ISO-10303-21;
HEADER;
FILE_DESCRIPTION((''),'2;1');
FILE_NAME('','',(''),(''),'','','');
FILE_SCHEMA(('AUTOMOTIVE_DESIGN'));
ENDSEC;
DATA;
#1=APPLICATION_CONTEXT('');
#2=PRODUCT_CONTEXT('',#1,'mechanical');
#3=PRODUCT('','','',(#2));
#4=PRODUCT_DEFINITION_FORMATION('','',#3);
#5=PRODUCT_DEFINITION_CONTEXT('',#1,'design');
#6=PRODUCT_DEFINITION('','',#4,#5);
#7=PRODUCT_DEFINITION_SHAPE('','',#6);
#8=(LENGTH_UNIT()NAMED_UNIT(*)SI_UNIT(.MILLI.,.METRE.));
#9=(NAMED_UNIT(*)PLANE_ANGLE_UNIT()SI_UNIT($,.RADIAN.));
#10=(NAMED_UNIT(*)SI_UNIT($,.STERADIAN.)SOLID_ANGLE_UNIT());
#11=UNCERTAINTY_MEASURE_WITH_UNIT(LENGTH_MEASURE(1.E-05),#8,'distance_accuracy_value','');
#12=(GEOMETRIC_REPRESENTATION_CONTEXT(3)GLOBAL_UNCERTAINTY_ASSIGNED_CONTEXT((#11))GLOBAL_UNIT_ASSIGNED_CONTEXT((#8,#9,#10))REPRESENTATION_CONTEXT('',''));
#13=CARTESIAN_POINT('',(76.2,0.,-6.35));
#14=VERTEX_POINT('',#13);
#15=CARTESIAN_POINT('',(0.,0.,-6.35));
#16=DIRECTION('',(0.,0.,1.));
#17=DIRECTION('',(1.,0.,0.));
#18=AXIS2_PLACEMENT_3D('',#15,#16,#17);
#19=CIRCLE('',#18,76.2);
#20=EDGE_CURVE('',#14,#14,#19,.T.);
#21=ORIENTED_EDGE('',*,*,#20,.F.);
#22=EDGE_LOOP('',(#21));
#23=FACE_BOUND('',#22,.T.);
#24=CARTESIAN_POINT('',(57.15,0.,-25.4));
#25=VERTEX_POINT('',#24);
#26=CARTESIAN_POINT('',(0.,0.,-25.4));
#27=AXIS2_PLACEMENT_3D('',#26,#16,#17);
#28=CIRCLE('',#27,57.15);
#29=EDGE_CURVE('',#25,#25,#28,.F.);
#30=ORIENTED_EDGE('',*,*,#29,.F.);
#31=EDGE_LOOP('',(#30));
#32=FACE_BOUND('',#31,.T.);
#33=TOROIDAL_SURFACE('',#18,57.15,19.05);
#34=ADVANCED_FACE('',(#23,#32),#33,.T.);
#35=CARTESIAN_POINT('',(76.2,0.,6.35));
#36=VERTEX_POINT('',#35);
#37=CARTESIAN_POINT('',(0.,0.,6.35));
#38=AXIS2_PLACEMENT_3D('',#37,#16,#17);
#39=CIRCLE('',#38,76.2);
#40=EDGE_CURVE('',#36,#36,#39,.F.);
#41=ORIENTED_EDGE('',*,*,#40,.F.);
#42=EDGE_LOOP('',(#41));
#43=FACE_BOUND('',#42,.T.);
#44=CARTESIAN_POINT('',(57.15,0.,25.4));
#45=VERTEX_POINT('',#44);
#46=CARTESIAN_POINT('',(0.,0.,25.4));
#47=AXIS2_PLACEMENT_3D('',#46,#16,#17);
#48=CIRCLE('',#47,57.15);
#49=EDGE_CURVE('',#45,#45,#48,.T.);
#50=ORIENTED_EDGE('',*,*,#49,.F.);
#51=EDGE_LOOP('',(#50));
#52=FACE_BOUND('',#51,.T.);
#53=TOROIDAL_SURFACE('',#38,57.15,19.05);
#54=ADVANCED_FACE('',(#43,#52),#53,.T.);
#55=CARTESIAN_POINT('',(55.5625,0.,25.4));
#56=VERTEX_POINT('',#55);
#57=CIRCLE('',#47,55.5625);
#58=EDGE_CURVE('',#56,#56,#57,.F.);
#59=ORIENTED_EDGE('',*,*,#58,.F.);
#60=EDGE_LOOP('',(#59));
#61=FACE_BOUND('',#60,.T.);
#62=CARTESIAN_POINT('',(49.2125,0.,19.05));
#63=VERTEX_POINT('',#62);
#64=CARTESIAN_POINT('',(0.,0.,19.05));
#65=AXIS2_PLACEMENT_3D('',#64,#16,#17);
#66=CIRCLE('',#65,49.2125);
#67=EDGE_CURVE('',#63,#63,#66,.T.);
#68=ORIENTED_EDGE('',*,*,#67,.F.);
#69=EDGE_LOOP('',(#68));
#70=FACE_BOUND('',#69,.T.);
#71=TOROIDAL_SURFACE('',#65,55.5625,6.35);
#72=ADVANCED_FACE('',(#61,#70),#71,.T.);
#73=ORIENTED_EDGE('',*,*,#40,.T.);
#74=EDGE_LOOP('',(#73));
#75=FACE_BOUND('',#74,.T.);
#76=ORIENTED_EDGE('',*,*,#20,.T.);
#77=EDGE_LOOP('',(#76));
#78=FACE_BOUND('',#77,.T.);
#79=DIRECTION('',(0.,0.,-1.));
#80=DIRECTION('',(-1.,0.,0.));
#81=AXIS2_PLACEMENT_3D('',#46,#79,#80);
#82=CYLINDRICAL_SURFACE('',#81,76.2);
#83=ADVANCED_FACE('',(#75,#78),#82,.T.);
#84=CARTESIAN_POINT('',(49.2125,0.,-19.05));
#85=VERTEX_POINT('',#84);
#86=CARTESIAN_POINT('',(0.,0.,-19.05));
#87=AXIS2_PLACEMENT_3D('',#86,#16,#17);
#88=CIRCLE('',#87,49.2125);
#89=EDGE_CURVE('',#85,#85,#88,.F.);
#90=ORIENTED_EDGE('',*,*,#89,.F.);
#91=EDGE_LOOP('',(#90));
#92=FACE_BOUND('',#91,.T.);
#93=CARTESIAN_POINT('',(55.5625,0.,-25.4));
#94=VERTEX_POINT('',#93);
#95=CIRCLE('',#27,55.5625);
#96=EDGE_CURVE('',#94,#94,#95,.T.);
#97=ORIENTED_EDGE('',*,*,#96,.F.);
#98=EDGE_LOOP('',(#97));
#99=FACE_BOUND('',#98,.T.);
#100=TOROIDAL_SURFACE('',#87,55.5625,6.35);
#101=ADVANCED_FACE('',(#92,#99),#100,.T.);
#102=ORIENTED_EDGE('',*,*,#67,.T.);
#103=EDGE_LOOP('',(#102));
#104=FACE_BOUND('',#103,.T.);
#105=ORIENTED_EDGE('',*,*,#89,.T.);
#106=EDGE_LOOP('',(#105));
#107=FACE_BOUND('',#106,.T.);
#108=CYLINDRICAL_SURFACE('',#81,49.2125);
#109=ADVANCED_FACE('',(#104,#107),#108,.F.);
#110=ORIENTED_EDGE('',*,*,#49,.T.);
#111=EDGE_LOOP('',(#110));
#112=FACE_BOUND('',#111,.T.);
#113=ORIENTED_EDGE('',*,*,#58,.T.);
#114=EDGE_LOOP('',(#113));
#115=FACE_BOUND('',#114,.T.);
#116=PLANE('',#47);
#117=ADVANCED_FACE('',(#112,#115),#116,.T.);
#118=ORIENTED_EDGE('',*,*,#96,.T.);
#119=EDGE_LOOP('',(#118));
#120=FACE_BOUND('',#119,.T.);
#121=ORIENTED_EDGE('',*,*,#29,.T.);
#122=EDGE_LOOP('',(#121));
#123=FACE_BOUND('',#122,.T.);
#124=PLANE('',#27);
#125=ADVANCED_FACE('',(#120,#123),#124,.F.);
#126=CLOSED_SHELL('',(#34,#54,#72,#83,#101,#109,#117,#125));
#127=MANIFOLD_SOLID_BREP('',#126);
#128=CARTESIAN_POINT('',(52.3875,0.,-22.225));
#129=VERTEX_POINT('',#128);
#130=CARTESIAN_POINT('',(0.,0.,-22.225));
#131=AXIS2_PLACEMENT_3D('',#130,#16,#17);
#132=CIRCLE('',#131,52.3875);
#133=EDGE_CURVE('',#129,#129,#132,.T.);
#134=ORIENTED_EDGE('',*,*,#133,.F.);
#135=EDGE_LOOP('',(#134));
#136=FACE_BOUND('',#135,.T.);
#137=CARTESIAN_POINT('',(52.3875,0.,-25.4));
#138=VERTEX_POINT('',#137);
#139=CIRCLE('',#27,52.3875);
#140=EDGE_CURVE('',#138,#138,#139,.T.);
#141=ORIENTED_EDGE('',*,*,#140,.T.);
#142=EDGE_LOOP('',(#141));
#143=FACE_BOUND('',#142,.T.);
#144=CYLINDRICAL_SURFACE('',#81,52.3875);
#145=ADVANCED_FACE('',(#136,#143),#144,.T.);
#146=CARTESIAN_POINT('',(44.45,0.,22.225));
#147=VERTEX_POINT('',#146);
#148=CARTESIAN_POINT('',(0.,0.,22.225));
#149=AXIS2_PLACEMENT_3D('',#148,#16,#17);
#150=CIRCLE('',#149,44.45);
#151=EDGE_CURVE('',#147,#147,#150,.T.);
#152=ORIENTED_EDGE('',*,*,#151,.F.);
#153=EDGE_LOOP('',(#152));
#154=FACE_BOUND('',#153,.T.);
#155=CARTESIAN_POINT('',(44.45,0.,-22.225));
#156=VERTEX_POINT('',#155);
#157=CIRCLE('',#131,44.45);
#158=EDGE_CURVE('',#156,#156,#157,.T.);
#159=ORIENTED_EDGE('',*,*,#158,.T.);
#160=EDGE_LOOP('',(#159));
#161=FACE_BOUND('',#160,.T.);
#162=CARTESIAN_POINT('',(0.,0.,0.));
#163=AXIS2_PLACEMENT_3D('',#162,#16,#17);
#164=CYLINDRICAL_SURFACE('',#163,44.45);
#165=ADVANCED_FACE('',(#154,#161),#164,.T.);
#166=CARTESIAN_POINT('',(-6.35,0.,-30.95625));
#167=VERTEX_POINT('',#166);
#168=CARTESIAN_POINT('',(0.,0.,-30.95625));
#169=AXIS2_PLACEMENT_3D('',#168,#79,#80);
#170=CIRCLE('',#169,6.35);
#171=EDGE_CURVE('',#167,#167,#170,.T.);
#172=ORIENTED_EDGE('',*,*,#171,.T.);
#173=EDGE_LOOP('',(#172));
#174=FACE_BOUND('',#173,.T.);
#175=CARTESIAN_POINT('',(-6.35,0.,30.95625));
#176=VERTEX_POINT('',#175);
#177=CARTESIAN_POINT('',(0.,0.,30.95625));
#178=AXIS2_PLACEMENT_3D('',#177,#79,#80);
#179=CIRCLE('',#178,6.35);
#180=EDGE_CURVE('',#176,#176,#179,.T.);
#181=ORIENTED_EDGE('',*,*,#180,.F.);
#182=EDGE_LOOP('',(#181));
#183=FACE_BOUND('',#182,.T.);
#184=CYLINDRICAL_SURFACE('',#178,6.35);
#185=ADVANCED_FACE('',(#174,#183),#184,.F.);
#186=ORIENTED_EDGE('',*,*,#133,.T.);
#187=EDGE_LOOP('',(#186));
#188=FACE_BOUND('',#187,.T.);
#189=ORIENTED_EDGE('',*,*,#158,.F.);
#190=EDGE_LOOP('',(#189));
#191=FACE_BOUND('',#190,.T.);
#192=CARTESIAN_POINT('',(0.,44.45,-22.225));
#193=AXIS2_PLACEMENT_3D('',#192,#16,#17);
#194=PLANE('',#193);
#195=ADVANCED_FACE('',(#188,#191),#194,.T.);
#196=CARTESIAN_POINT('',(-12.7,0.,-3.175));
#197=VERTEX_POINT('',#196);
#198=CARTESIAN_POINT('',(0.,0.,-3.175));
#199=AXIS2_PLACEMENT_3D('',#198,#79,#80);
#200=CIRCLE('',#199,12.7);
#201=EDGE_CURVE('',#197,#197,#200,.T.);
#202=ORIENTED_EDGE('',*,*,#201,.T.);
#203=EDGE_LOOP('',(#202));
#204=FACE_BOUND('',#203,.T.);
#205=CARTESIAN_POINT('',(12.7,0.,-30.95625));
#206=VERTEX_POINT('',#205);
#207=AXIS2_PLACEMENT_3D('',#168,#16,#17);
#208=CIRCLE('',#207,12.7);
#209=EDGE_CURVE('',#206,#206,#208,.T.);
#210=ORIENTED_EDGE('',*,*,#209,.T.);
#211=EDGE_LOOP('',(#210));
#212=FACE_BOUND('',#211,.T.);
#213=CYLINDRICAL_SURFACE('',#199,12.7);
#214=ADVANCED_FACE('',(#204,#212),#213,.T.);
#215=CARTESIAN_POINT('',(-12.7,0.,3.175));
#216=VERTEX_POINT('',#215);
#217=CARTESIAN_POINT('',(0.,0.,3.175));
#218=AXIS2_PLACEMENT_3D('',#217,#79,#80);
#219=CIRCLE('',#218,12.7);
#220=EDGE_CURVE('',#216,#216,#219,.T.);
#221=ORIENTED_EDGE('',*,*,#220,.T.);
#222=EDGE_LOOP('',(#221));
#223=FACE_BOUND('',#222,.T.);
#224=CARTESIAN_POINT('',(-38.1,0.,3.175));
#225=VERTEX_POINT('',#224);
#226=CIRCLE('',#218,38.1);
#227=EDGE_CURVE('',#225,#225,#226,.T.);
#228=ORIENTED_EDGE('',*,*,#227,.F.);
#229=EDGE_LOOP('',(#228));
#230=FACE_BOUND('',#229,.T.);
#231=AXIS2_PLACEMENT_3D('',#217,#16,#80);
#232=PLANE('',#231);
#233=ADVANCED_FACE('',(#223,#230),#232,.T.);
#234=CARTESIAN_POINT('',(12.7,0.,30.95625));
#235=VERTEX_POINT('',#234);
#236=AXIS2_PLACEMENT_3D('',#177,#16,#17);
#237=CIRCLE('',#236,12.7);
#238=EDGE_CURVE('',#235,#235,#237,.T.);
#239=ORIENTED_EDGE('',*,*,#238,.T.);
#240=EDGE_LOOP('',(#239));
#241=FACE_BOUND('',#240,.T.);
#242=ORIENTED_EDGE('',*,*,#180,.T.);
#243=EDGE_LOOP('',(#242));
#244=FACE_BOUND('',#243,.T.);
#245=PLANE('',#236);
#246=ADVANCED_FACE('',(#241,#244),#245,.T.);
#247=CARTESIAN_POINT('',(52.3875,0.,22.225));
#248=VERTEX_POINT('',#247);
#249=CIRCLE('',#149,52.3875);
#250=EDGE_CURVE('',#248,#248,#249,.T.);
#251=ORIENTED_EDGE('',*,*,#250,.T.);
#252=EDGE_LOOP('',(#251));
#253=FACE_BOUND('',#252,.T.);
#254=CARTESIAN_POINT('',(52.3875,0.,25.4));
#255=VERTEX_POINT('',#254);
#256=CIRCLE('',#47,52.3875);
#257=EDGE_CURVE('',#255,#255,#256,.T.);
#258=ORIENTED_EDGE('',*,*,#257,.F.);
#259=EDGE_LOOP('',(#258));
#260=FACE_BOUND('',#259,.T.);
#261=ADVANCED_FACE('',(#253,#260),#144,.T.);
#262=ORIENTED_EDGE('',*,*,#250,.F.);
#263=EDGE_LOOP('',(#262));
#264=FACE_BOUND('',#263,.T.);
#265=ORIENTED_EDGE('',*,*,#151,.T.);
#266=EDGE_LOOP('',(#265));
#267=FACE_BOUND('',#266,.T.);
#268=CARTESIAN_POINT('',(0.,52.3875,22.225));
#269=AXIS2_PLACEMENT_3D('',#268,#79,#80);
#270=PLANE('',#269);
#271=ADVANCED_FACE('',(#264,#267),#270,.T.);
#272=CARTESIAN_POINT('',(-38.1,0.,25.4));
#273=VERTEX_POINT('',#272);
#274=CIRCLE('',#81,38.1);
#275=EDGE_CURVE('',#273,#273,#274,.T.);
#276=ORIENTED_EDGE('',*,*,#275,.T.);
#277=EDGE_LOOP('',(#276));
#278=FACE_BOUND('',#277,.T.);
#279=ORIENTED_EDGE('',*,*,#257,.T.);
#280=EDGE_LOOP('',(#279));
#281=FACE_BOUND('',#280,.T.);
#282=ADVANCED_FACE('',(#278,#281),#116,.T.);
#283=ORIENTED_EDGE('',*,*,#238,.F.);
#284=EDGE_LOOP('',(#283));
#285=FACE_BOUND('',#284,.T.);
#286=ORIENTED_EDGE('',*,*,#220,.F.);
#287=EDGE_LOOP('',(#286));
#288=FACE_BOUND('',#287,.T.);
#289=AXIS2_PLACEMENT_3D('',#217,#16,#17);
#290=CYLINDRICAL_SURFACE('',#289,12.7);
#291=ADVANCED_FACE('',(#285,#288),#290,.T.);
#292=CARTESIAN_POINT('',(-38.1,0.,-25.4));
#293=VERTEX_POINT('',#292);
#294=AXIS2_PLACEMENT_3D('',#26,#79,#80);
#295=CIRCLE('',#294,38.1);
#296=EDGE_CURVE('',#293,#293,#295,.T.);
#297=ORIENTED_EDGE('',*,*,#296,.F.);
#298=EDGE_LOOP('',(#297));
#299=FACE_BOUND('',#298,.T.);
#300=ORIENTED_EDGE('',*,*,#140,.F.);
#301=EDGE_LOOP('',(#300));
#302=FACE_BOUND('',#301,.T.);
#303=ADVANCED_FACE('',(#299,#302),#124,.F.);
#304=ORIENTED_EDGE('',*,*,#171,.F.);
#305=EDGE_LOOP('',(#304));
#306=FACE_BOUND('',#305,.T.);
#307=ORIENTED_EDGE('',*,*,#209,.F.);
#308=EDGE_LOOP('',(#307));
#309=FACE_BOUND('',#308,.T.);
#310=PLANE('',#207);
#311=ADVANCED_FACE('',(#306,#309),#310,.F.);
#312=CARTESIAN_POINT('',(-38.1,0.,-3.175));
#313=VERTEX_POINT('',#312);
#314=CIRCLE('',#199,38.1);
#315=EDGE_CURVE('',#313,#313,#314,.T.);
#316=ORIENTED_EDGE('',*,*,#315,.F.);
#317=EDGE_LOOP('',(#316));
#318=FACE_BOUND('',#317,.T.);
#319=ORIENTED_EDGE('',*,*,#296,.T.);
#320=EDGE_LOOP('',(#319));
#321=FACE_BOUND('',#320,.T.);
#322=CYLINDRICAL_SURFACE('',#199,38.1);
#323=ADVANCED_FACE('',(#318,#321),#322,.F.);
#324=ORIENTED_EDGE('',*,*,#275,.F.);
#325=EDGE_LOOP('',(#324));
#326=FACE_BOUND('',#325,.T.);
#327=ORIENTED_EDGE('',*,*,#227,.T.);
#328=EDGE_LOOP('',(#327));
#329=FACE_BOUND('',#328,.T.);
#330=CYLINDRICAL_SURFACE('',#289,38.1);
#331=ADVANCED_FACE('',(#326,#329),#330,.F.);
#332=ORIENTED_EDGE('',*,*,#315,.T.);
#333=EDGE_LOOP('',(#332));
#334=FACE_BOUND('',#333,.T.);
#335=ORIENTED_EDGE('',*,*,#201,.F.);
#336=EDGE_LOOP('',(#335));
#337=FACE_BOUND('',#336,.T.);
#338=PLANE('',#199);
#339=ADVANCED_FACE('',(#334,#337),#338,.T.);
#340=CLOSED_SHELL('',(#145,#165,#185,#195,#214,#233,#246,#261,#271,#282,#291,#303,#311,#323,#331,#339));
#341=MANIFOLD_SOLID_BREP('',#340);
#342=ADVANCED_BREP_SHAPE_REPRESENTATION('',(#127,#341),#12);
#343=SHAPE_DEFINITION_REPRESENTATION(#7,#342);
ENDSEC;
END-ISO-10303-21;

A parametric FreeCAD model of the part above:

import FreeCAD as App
import Part
import Sketcher
from FreeCAD import Vector
Q = App.Units.Quantity


def edges_at(feature, points):
    """Names of the edges that pass closest to the given points."""
    edges = feature.Shape.Edges
    near = lambda p: min(range(len(edges)), key=lambda i: edges[i].distToShape(Part.Vertex(*p))[0])
    return sorted({f"Edge{near(p) + 1}" for p in points})


def add_polygon(sketch, points):
    """Adds a closed chain of lines whose ends are joined by coincident constraints."""
    first, n = sketch.GeometryCount, len(points)
    for a, b in zip(points, points[1:] + points[:1]):
        sketch.addGeometry(Part.LineSegment(App.Vector(*a, 0), App.Vector(*b, 0)), False)
    for i in range(n):
        sketch.addConstraint(Sketcher.Constraint("Coincident", first + i, 2, first + (i + 1) % n, 1))

doc = App.newDocument("Part")
params = doc.addObject("Spreadsheet::Sheet", "Params")
for row, (alias, value) in enumerate([
    ("sketch1_diameter", "6 in"),
    ("sketch1_diameter2", "3.875 in"),
    ("pad1_length", "2 in"),
    ("fillet_radius", "0.75 in"),
    ("fillet2_radius", "0.25 in"),
    ("sketch2_diameter", "4.125 in"),
    ("pad2_length", "2 in"),
    ("sketch3_height", "1.75 in"),
    ("sketch3_width", "0.3125 in"),
    ("groove_angle", "360 deg"),
    ("sketch4_diameter", "3 in"),
    ("sketch4_diameter2", "1 in"),
    ("pocket1_length", "0.875 in"),
    ("sketch5_diameter", "1 in"),
    ("pad3_length", "2.4375 in"),
    ("sketch6_diameter", "0.5 in"),
], start=1):
    params.set(f"A{row}", alias)
    params.set(f"B{row}", "=" + value)
    params.setAlias(f"B{row}", alias)

body = doc.addObject("PartDesign::Body", "Body")

# Sketch on XY plane
sketch1 = body.newObject("Sketcher::SketchObject", "Sketch")
sketch1.AttachmentSupport = (doc.getObject("XY_Plane"), [""])
sketch1.MapMode = "FlatFace"
sketch1.addGeometry([
    Part.Circle(Vector(0, 0, 0), Vector(0, 0, 1), 76),
    Part.Circle(Vector(0, 0, 0), Vector(0, 0, 1), 49),
], False)
sketch1.addConstraint([
    Sketcher.Constraint("Coincident", 0, 3, -1, 1),
    Sketcher.Constraint("Coincident", 1, 3, -1, 1),
    Sketcher.Constraint("Diameter", 0, Q("6 in")),
    Sketcher.Constraint("Diameter", 1, Q("3.875 in")),
])
sketch1.setExpression("Constraints[2]", "Params.sketch1_diameter")
sketch1.setExpression("Constraints[3]", "Params.sketch1_diameter2")
pad1 = body.newObject("PartDesign::Pad", "Pad")
pad1.Profile = sketch1
pad1.setExpression("Length", "Params.pad1_length")
pad1.Midplane = True
doc.recompute()

fillet = body.newObject("PartDesign::Fillet", "Fillet")
fillet.Base = (pad1, edges_at(pad1, [(-76.2, 0, -25.4), (-76.2, 0, 25.4)]))
fillet.setExpression("Radius", "Params.fillet_radius")
doc.recompute()

fillet2 = body.newObject("PartDesign::Fillet", "Fillet001")
fillet2.Base = (fillet, edges_at(fillet, [(-49.212, 0, -25.4), (-49.212, 0, 25.4)]))
fillet2.setExpression("Radius", "Params.fillet2_radius")
body2 = doc.addObject("PartDesign::Body", "Body001")

# Sketch on XY plane
sketch2 = body2.newObject("Sketcher::SketchObject", "Sketch001")
sketch2.AttachmentSupport = (doc.getObject("XY_Plane001"), [""])
sketch2.MapMode = "FlatFace"
sketch2.addGeometry(Part.Circle(Vector(0, 0, 0), Vector(0, 0, 1), 52), False)
sketch2.addConstraint([
    Sketcher.Constraint("Coincident", 0, 3, -1, 1),
    Sketcher.Constraint("Diameter", 0, Q("4.125 in")),
])
sketch2.setExpression("Constraints[1]", "Params.sketch2_diameter")
pad2 = body2.newObject("PartDesign::Pad", "Pad001")
pad2.Profile = sketch2
pad2.setExpression("Length", "Params.pad2_length")
pad2.Midplane = True

# Sketch on YZ plane
sketch3 = body2.newObject("Sketcher::SketchObject", "Sketch002")
sketch3.AttachmentSupport = (doc.getObject("YZ_Plane001"), [""])
sketch3.MapMode = "FlatFace"
add_polygon(sketch3, [(52, 22), (44, 22), (44, -22), (52, -22)])  # lines 0-3
sketch3.addConstraint([
    Sketcher.Constraint("Horizontal", 0),
    Sketcher.Constraint("Vertical", 1),
    Sketcher.Constraint("Horizontal", 2),
    Sketcher.Constraint("Vertical", 3),
    Sketcher.Constraint("DistanceY", 1, 2, 1, 1, Q("1.75 in")),
    Sketcher.Constraint("DistanceX", 0, 2, 0, 1, Q("0.3125 in")),
    Sketcher.Constraint("DistanceX", -1, 1, 0, 2, Q("1.75 in")),
    Sketcher.Constraint("DistanceY", -1, 1, 0, 2, Q("0.875 in")),
])
sketch3.setExpression("Constraints[8]", "Params.sketch3_height")
sketch3.setExpression("Constraints[9]", "Params.sketch3_width")
groove = body2.newObject("PartDesign::Groove", "Groove")
groove.Profile = sketch3
groove.ReferenceAxis = (sketch3, ["V_Axis"])
groove.setExpression("Angle", "Params.groove_angle")

# Sketch on XY plane
sketch4 = body2.newObject("Sketcher::SketchObject", "Sketch003")
sketch4.AttachmentSupport = (doc.getObject("XY_Plane001"), [""])
sketch4.MapMode = "FlatFace"
sketch4.AttachmentOffset = App.Placement(Vector(0, 0, -1 * 25.4), App.Rotation())
sketch4.addGeometry([
    Part.Circle(Vector(0, 0, 0), Vector(0, 0, 1), 38),
    Part.Circle(Vector(0, 0, 0), Vector(0, 0, 1), 13),
], False)
sketch4.addConstraint([
    Sketcher.Constraint("Coincident", 0, 3, -1, 1),
    Sketcher.Constraint("Coincident", 1, 3, -1, 1),
    Sketcher.Constraint("Diameter", 0, Q("3 in")),
    Sketcher.Constraint("Diameter", 1, Q("1 in")),
])
sketch4.setExpression("Constraints[2]", "Params.sketch4_diameter")
sketch4.setExpression("Constraints[3]", "Params.sketch4_diameter2")
pocket1 = body2.newObject("PartDesign::Pocket", "Pocket")
pocket1.Profile = sketch4
pocket1.setExpression("Length", "Params.pocket1_length")
pocket1.Reversed = True
doc.recompute()

mirrored = body2.newObject("PartDesign::Mirrored", "Mirrored")
mirrored.Originals = [pocket1]
mirrored.MirrorPlane = (doc.getObject("XY_Plane001"), [""])
body2.Tip = mirrored

# Sketch on XY plane
sketch5 = body2.newObject("Sketcher::SketchObject", "Sketch004")
sketch5.AttachmentSupport = (doc.getObject("XY_Plane001"), [""])
sketch5.MapMode = "FlatFace"
sketch5.addGeometry(Part.Circle(Vector(0, 0, 0), Vector(0, 0, 1), 13), False)
sketch5.addConstraint([
    Sketcher.Constraint("Coincident", 0, 3, -1, 1),
    Sketcher.Constraint("Diameter", 0, Q("1 in")),
])
sketch5.setExpression("Constraints[1]", "Params.sketch5_diameter")
pad3 = body2.newObject("PartDesign::Pad", "Pad002")
pad3.Profile = sketch5
pad3.setExpression("Length", "Params.pad3_length")
pad3.Midplane = True

# Sketch on XY plane
sketch6 = body2.newObject("Sketcher::SketchObject", "Sketch005")
sketch6.AttachmentSupport = (doc.getObject("XY_Plane001"), [""])
sketch6.MapMode = "FlatFace"
sketch6.AttachmentOffset = App.Placement(Vector(0, 0, -1.21875 * 25.4), App.Rotation())
sketch6.addGeometry(Part.Circle(Vector(0, 0, 0), Vector(0, 0, 1), 6), False)
sketch6.addConstraint([
    Sketcher.Constraint("Coincident", 0, 3, -1, 1),
    Sketcher.Constraint("Diameter", 0, Q("0.5 in")),
])
sketch6.setExpression("Constraints[1]", "Params.sketch6_diameter")
pocket2 = body2.newObject("PartDesign::Pocket", "Pocket001")
pocket2.Profile = sketch6
pocket2.Type = "ThroughAll"
pocket2.Reversed = True

doc.recompute()
